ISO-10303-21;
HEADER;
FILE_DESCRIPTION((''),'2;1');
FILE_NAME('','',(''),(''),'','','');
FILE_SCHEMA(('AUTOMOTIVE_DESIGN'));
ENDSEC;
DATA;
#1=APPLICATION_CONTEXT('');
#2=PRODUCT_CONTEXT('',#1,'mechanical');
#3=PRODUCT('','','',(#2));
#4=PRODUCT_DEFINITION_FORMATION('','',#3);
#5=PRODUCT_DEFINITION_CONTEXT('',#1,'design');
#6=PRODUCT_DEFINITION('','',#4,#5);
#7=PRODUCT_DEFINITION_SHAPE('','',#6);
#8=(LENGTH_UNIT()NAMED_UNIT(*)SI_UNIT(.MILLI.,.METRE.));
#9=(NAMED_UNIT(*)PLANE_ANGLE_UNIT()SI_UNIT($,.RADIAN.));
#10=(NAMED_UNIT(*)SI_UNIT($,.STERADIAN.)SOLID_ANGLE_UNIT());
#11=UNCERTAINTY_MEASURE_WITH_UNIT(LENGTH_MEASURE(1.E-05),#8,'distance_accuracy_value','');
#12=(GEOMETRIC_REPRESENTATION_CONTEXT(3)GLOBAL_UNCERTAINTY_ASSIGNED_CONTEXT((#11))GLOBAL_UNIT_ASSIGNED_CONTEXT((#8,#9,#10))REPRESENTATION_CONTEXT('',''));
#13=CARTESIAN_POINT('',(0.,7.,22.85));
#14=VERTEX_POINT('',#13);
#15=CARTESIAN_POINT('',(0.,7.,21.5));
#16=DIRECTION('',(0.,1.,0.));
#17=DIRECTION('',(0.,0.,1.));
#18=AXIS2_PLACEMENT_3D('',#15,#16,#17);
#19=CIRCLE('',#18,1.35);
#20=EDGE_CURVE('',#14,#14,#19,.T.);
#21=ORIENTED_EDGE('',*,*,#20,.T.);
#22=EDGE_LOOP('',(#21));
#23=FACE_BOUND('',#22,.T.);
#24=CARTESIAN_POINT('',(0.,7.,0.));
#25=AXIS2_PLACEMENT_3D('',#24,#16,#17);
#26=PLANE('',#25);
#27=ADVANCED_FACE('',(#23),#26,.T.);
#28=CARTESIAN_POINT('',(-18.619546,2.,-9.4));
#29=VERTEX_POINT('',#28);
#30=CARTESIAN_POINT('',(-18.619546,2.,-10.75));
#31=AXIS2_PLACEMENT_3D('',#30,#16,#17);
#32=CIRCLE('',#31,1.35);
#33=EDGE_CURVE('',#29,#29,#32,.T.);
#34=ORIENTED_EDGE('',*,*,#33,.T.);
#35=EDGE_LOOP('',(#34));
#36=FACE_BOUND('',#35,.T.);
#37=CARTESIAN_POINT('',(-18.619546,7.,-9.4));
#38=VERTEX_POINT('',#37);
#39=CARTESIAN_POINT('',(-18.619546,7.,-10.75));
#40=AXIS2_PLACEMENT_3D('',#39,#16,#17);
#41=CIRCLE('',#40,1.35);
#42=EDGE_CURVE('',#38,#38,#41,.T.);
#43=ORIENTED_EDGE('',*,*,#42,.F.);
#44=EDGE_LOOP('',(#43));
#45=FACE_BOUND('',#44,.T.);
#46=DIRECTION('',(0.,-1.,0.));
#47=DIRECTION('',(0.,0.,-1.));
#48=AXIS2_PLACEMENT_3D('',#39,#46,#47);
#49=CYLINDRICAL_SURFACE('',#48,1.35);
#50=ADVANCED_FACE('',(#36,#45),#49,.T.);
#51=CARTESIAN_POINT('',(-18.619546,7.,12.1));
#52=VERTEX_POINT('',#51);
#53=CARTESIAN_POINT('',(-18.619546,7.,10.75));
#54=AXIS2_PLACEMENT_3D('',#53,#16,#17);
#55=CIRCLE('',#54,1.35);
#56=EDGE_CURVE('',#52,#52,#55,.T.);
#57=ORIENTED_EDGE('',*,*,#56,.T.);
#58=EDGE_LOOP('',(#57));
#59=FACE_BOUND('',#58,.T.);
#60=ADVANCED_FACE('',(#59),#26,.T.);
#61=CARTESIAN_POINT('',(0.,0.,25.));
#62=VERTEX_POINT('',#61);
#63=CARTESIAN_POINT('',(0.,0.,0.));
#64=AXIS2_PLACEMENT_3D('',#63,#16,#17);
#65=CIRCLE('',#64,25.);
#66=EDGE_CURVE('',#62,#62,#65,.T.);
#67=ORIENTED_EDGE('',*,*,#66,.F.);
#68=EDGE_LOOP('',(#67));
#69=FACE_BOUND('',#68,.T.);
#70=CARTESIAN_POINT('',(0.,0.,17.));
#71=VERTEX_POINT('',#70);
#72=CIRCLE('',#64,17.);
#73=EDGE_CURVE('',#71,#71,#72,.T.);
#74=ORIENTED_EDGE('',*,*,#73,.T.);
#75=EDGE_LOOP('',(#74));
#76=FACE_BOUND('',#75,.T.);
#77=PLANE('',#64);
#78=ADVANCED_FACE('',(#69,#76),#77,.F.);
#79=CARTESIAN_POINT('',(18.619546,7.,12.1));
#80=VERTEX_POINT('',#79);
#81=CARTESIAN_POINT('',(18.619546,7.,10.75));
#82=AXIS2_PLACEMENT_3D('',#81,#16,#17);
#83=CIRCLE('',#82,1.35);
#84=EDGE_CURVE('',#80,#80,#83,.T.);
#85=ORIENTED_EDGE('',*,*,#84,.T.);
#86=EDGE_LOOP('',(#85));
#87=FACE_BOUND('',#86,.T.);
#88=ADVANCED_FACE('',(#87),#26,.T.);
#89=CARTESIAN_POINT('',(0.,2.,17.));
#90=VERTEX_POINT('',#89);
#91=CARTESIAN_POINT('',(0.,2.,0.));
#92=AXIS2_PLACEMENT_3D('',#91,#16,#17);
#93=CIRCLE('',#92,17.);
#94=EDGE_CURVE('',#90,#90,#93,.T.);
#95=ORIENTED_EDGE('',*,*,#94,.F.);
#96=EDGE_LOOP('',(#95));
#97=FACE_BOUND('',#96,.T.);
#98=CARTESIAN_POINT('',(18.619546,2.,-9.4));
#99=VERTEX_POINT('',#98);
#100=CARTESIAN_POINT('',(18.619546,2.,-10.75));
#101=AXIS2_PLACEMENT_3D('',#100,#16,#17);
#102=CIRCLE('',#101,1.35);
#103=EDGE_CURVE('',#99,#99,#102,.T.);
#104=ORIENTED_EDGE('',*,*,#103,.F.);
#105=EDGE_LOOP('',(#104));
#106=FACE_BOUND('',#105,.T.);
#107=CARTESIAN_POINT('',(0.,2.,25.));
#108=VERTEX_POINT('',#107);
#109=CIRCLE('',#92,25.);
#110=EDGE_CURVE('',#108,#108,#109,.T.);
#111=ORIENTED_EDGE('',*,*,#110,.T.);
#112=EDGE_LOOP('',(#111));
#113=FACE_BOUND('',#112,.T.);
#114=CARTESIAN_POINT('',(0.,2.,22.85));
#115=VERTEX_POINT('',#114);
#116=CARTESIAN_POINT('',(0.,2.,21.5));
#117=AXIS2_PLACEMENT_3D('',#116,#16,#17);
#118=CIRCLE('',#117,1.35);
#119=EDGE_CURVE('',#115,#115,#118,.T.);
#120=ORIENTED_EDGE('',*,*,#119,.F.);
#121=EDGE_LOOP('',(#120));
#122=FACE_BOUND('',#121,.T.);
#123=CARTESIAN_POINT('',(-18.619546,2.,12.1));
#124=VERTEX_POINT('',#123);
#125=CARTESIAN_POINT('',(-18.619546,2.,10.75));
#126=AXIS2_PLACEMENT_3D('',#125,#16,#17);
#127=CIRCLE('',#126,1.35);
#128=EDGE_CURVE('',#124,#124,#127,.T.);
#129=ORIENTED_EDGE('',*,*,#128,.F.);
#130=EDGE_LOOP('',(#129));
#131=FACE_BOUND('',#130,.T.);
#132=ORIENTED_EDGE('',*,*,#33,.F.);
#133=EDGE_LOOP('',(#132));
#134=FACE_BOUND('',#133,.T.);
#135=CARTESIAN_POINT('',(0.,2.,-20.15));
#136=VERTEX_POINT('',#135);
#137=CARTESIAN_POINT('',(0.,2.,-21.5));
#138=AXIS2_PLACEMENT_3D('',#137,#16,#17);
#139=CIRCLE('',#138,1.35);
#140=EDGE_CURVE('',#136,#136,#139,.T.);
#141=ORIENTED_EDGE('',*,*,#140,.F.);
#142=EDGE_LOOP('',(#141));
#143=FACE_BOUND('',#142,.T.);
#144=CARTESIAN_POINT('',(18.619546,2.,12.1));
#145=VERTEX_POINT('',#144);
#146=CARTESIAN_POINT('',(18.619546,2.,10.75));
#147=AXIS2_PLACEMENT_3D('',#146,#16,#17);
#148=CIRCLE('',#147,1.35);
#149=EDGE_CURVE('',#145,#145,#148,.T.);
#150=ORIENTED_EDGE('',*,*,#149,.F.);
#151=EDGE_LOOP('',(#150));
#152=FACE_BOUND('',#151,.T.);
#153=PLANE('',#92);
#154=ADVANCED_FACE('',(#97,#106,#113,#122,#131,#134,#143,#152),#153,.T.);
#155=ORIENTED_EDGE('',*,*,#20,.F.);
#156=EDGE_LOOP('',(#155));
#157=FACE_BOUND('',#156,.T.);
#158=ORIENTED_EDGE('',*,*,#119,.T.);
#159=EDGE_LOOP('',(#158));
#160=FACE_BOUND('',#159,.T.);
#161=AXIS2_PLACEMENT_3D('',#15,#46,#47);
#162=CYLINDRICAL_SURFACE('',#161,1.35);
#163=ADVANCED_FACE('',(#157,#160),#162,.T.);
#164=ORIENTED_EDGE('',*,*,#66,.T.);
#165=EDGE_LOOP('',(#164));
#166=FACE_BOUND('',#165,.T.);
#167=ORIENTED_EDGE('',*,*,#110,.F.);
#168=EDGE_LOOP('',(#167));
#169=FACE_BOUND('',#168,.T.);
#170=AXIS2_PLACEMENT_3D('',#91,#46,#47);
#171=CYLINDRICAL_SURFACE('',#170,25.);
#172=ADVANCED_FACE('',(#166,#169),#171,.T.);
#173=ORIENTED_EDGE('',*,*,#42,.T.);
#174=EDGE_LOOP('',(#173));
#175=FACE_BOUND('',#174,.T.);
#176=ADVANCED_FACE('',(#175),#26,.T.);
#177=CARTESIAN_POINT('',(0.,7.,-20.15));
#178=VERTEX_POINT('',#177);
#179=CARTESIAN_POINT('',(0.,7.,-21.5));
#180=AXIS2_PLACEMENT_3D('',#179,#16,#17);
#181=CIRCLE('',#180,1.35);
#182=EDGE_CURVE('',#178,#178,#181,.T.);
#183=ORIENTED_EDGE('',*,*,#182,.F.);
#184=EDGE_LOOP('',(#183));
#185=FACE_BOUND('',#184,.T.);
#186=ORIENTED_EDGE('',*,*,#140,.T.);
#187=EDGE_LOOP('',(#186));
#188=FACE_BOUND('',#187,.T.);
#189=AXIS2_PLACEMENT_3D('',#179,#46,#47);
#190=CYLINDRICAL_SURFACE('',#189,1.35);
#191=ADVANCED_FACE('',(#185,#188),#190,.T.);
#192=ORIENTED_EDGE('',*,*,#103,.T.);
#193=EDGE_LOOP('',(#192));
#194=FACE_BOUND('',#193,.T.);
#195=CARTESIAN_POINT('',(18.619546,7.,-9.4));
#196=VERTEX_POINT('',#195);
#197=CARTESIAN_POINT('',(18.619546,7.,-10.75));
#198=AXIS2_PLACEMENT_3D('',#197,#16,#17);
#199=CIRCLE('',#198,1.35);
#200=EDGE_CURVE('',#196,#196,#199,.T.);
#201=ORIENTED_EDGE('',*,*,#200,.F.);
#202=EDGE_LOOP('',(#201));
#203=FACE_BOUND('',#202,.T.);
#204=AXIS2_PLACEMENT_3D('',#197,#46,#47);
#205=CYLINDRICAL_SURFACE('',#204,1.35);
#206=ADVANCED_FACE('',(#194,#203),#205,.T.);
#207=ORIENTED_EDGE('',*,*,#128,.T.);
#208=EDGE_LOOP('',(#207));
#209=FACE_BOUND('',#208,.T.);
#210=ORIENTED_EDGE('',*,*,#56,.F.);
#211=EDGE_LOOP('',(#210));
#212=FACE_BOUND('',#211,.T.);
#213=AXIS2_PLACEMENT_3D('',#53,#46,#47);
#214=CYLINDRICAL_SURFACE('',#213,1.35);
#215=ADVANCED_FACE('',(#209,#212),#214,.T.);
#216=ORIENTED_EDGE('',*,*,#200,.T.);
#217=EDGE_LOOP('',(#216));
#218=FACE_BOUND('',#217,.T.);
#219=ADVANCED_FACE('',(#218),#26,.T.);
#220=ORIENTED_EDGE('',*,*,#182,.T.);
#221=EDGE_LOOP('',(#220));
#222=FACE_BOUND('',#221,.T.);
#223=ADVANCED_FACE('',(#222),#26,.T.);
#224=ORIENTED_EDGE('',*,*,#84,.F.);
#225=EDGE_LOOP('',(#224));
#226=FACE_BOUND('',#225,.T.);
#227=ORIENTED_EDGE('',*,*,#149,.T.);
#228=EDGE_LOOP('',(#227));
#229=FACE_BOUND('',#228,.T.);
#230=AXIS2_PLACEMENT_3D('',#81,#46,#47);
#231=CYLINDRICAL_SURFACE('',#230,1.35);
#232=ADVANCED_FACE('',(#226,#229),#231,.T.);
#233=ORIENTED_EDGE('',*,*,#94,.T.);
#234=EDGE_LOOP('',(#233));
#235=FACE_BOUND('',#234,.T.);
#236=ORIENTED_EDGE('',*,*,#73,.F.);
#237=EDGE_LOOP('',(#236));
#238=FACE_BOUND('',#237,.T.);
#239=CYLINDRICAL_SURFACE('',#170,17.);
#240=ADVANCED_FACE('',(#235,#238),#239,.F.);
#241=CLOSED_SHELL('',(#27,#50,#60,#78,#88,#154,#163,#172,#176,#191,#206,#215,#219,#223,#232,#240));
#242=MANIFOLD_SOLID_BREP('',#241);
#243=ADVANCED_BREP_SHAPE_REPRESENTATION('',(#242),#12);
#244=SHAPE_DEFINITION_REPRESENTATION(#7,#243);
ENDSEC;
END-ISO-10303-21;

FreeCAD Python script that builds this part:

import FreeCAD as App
import Part
import Sketcher

doc = App.newDocument("Part")
body = doc.addObject("PartDesign::Body", "Body")

# Sketch on XZ plane
sketch1 = doc.addObject("Sketcher::SketchObject", "Sketch")
body.addObject(sketch1)
sketch1.AttachmentSupport = (doc.XZ_Plane, [""])
sketch1.MapMode = "FlatFace"
sketch1.addGeometry([
    Part.Circle(App.Vector(0, 0, 0), App.Vector(0, 0, 1), 25),  # 0
    Part.Circle(App.Vector(-18.6, -10.8, 0), App.Vector(0, 0, 1), 1.4),  # 1
    Part.Circle(App.Vector(0, -21.5, 0), App.Vector(0, 0, 1), 1.4),  # 2
    Part.Circle(App.Vector(-18.6, 10.8, 0), App.Vector(0, 0, 1), 1.4),  # 3
    Part.Circle(App.Vector(18.6, -10.8, 0), App.Vector(0, 0, 1), 1.4),  # 4
    Part.Circle(App.Vector(0, 0, 0), App.Vector(0, 0, 1), 17),  # 5
    Part.Circle(App.Vector(0, 21.5, 0), App.Vector(0, 0, 1), 1.4),  # 6
    Part.Circle(App.Vector(18.6, 10.8, 0), App.Vector(0, 0, 1), 1.4),  # 7
], False)
sketch1.addConstraint([
    Sketcher.Constraint("Coincident", 0, 3, -1, 1),
    Sketcher.Constraint("Coincident", 5, 3, -1, 1),
    Sketcher.Constraint("Equal", 1, 2),
    Sketcher.Constraint("Equal", 2, 3),
    Sketcher.Constraint("Equal", 3, 4),
    Sketcher.Constraint("Equal", 4, 6),
    Sketcher.Constraint("Equal", 6, 7),
    Sketcher.Constraint("Symmetric", 3, 3, 4, 3, -1, 1),
    Sketcher.Constraint("Symmetric", 2, 3, 6, 3, -1, 1),
    Sketcher.Constraint("Symmetric", 1, 3, 7, 3, -1, 1),
    Sketcher.Constraint("Symmetric", 1, 3, 4, 3, -2),
    Sketcher.Constraint("PointOnObject", 2, 3, -2),
    Sketcher.Constraint("Diameter", 0, 50.0),
    Sketcher.Constraint("Diameter", 5, 34.0),
    Sketcher.Constraint("Diameter", 1, 2.7),
    Sketcher.Constraint("DistanceY", 2, 3, -1, 1, 21.5),
    Sketcher.Constraint("DistanceY", 1, 3, 3, 3, 21.5),
    Sketcher.Constraint("DistanceX", 1, 3, -1, 1, 18.619546),
])
pad1 = doc.addObject("PartDesign::Pad", "Pad")
body.addObject(pad1)
pad1.Profile = sketch1
pad1.Length = 2
pad1.Reversed = True

# Sketch on XZ plane
sketch2 = doc.addObject("Sketcher::SketchObject", "Sketch001")
body.addObject(sketch2)
sketch2.AttachmentSupport = (doc.XZ_Plane, [""])
sketch2.MapMode = "FlatFace"
sketch2.addGeometry([
    Part.Circle(App.Vector(-18.6, 10.8, 0), App.Vector(0, 0, 1), 1.4),  # 0
    Part.Circle(App.Vector(-18.6, -10.8, 0), App.Vector(0, 0, 1), 1.4),  # 1
    Part.Circle(App.Vector(0, -21.5, 0), App.Vector(0, 0, 1), 1.4),  # 2
    Part.Circle(App.Vector(18.6, -10.8, 0), App.Vector(0, 0, 1), 1.4),  # 3
    Part.Circle(App.Vector(18.6, 10.8, 0), App.Vector(0, 0, 1), 1.4),  # 4
    Part.Circle(App.Vector(0, 21.5, 0), App.Vector(0, 0, 1), 1.4),  # 5
], False)
sketch2.addConstraint([
    Sketcher.Constraint("Equal", 0, 1),
    Sketcher.Constraint("Equal", 1, 2),
    Sketcher.Constraint("Equal", 2, 3),
    Sketcher.Constraint("Equal", 3, 4),
    Sketcher.Constraint("Equal", 4, 5),
    Sketcher.Constraint("Symmetric", 0, 3, 3, 3, -1, 1),
    Sketcher.Constraint("Symmetric", 1, 3, 4, 3, -1, 1),
    Sketcher.Constraint("Symmetric", 2, 3, 5, 3, -1, 1),
    Sketcher.Constraint("Symmetric", 1, 3, 3, 3, -2),
    Sketcher.Constraint("PointOnObject", 2, 3, -2),
    Sketcher.Constraint("Diameter", 0, 2.7),
    Sketcher.Constraint("DistanceY", 2, 3, 5, 3, 43.0),
    Sketcher.Constraint("DistanceY", 1, 3, 0, 3, 21.5),
    Sketcher.Constraint("DistanceX", 0, 3, -1, 1, 18.619546),
])
pad2 = doc.addObject("PartDesign::Pad", "Pad001")
body.addObject(pad2)
pad2.Profile = sketch2
pad2.Length = 7
pad2.Reversed = True

doc.recompute()
